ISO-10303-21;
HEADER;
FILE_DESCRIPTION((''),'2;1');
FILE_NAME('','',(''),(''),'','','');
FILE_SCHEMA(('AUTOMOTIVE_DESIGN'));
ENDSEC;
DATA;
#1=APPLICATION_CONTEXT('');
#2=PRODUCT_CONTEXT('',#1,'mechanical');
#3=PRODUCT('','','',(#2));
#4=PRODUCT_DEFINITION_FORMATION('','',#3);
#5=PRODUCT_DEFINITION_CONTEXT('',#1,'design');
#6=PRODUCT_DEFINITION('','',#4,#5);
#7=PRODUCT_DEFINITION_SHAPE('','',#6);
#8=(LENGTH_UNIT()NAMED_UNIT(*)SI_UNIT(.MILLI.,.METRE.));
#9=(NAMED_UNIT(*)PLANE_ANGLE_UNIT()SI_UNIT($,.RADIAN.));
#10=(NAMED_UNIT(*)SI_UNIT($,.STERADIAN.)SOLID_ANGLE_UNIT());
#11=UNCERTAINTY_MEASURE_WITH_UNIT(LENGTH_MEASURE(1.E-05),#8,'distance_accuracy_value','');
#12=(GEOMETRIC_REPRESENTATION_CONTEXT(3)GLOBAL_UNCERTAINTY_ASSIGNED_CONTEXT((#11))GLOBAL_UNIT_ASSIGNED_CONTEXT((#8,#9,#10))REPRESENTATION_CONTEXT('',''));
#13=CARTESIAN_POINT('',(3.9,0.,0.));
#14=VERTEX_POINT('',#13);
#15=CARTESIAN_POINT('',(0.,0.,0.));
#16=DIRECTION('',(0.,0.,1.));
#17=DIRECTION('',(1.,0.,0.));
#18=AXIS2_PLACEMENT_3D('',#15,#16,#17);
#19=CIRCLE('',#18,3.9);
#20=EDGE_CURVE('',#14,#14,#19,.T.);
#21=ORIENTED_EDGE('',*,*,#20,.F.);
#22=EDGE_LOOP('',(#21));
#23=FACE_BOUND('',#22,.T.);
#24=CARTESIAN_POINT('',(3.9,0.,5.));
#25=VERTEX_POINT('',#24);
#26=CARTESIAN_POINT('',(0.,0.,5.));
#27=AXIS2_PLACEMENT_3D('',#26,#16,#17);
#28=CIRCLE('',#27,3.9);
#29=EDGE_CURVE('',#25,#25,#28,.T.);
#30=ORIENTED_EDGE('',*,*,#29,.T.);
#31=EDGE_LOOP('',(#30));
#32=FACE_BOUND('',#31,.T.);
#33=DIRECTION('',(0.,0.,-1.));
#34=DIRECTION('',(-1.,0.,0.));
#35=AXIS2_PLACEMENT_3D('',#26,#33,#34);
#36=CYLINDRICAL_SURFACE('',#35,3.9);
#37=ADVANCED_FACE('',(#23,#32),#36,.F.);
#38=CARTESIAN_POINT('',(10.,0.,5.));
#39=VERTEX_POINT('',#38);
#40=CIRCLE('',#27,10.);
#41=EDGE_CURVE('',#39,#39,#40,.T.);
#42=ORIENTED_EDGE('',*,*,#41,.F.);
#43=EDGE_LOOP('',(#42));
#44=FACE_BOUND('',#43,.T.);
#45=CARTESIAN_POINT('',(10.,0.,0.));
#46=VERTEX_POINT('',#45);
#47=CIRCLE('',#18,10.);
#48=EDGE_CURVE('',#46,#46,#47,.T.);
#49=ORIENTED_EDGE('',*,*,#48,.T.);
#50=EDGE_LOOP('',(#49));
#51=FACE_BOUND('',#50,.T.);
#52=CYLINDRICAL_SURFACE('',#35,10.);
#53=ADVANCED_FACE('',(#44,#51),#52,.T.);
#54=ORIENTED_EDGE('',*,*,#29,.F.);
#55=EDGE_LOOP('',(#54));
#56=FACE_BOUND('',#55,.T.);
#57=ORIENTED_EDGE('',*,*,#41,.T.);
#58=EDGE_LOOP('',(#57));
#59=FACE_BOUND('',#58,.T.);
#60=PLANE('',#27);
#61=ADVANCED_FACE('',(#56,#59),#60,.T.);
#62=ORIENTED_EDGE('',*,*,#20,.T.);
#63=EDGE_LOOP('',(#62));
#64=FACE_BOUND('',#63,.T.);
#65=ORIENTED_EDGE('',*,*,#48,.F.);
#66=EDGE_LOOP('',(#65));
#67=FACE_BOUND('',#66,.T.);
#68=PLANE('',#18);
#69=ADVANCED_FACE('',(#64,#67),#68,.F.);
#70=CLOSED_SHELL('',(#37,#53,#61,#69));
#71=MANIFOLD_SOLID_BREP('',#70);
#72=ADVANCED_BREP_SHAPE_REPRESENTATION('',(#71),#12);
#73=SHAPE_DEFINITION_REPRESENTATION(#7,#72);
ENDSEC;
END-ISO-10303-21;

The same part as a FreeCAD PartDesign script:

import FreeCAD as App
import Part
import Sketcher

V = App.Vector
Q = App.Units.Quantity

doc = App.newDocument("Part")
body = doc.addObject("PartDesign::Body", "Body")

sketch1 = doc.addObject("Sketcher::SketchObject", "Sketch")
body.addObject(sketch1)
sketch1.AttachmentSupport = (doc.XY_Plane, [""])
sketch1.MapMode = "FlatFace"
sketch1.addGeometry([
    Part.Circle(V(0, 0, 0), V(0, 0, 1), 10),
    Part.Circle(V(0, 0, 0), V(0, 0, 1), 3.9),
], False)
sketch1.addConstraint([
    Sketcher.Constraint("Coincident", 0, 3, -1, 1),
    Sketcher.Constraint("Coincident", 1, 3, -1, 1),
    Sketcher.Constraint("Diameter", 0, Q("20 mm")),
    Sketcher.Constraint("Diameter", 1, Q("7.8 mm")),
])
pad1 = doc.addObject("PartDesign::Pad", "Pad")
body.addObject(pad1)
pad1.Profile = sketch1
pad1.Length = 5

doc.recompute()
